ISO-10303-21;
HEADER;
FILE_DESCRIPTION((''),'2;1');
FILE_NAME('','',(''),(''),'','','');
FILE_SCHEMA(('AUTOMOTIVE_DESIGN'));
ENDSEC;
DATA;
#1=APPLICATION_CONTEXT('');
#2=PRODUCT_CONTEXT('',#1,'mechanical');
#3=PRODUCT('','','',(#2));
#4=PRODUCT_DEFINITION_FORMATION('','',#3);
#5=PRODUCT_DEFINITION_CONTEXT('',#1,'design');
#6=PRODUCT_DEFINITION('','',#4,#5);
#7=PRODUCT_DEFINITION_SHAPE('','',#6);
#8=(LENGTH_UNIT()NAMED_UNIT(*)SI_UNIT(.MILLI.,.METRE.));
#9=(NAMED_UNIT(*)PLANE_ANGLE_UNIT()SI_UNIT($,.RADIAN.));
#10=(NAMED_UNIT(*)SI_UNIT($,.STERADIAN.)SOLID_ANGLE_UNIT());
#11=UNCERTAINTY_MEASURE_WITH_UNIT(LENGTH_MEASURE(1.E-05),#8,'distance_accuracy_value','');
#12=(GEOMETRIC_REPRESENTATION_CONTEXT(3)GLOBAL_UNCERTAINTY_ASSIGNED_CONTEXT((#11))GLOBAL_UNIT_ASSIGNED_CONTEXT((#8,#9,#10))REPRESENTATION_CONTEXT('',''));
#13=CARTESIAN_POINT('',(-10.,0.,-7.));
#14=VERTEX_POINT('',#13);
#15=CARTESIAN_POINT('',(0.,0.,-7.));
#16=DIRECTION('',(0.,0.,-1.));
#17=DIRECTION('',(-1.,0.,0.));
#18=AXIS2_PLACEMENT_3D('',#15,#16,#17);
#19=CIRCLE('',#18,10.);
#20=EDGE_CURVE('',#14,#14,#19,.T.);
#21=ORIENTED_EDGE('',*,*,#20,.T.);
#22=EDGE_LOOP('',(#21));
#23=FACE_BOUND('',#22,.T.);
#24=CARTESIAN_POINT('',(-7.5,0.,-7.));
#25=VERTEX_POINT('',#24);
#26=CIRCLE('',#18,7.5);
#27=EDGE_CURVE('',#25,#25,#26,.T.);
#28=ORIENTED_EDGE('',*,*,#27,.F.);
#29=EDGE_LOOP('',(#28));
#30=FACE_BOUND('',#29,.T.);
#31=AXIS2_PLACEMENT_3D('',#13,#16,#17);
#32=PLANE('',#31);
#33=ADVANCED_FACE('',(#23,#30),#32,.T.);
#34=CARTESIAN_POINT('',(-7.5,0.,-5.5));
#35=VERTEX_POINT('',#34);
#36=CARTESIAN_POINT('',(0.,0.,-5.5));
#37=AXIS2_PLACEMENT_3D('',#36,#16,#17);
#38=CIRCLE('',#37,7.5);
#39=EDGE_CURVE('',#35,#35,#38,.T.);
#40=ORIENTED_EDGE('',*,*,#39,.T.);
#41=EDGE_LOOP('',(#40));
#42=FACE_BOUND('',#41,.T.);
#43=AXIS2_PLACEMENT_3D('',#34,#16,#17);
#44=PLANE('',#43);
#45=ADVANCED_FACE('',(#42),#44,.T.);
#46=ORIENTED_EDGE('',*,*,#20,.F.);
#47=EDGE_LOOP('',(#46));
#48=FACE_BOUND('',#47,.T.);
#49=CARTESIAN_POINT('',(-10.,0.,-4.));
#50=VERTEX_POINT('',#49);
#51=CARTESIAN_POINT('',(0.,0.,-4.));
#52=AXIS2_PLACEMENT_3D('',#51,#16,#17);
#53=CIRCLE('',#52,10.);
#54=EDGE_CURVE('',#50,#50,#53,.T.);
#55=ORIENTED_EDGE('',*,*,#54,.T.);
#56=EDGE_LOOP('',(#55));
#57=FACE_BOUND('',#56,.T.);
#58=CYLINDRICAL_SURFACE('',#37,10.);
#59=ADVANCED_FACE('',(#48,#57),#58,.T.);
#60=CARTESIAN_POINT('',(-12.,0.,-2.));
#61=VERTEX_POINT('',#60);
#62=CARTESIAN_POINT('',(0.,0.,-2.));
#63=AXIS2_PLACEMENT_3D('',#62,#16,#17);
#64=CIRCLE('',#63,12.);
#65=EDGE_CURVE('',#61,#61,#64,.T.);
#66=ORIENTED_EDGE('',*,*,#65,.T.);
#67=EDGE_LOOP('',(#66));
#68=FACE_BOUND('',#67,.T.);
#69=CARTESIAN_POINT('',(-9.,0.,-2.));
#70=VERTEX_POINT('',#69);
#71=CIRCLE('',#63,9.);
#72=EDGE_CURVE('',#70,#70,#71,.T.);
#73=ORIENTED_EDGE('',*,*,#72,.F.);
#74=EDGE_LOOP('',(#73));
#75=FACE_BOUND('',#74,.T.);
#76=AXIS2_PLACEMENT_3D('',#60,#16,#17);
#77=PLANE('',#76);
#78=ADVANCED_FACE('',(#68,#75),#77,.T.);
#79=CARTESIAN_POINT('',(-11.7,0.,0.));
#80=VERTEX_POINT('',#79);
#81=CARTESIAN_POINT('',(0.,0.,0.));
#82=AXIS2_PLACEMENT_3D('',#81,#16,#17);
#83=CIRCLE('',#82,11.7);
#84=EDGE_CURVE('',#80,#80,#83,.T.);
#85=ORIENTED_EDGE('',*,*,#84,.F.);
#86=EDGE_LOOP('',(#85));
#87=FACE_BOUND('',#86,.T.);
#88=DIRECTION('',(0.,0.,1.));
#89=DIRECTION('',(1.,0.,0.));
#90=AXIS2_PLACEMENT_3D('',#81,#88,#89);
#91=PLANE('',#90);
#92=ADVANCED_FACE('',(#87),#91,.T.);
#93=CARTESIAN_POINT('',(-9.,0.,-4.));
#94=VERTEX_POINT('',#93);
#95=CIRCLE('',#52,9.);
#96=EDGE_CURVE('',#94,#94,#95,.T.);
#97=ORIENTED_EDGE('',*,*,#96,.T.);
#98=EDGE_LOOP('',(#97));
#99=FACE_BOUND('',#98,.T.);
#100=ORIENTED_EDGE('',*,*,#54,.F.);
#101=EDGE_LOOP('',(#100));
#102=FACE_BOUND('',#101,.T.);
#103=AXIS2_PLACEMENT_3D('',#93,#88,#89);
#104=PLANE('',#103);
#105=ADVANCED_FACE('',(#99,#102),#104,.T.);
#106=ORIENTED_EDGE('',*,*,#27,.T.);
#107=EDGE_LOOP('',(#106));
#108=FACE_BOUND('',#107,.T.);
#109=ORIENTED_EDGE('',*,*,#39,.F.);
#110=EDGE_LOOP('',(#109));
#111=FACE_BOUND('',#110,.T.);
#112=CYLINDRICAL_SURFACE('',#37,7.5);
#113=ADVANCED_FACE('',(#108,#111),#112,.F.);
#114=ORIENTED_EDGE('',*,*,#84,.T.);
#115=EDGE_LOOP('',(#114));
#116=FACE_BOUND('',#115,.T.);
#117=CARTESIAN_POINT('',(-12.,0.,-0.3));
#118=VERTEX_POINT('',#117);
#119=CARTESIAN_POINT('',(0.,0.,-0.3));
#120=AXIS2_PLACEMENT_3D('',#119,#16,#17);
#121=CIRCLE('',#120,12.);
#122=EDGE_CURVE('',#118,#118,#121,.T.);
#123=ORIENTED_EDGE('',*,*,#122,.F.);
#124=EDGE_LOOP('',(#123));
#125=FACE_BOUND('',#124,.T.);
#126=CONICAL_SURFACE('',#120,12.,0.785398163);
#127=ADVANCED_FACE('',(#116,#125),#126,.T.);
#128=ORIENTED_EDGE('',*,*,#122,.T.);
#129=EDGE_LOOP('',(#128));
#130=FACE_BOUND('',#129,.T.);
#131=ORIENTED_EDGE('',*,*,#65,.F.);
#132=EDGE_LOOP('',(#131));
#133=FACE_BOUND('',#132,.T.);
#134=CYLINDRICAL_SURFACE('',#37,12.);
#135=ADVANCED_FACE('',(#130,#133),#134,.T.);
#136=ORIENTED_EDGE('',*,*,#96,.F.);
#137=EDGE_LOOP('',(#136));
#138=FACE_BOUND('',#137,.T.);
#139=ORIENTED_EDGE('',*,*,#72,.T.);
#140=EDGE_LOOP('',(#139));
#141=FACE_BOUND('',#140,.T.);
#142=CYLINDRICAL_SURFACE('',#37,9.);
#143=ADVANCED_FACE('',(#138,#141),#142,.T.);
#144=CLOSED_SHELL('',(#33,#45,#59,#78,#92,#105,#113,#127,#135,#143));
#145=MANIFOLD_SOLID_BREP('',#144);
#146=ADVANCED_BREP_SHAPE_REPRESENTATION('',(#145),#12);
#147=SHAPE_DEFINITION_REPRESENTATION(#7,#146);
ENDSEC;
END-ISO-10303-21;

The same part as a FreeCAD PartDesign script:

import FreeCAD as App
import Part
import Sketcher
Q = App.Units.Quantity


def add_polygon(sketch, points):
    """Adds a closed chain of lines whose ends are joined by coincident constraints."""
    first, n = sketch.GeometryCount, len(points)
    for a, b in zip(points, points[1:] + points[:1]):
        sketch.addGeometry(Part.LineSegment(App.Vector(*a, 0), App.Vector(*b, 0)), False)
    for i in range(n):
        sketch.addConstraint(Sketcher.Constraint("Coincident", first + i, 2, first + (i + 1) % n, 1))

doc = App.newDocument("Part")
body = doc.addObject("PartDesign::Body", "Body")

sketch1 = body.newObject("Sketcher::SketchObject", "Sketch")
sketch1.AttachmentSupport = (doc.getObject("XZ_Plane"), [""])
sketch1.MapMode = "FlatFace"
add_polygon(sketch1, [(-11.7, 0), (0, 0), (0, -5.5), (-7.5, -5.5), (-7.5, -7), (-10, -7), (-10, -4), (-9, -4), (-9, -2), (-12, -2), (-12, -0.3)])
sketch1.addConstraint([
    Sketcher.Constraint("Horizontal", 0),
    Sketcher.Constraint("Vertical", 1),
    Sketcher.Constraint("Horizontal", 2),
    Sketcher.Constraint("Vertical", 3),
    Sketcher.Constraint("Horizontal", 4),
    Sketcher.Constraint("Vertical", 5),
    Sketcher.Constraint("Horizontal", 6),
    Sketcher.Constraint("Vertical", 7),
    Sketcher.Constraint("Horizontal", 8),
    Sketcher.Constraint("Vertical", 9),
    Sketcher.Constraint("Coincident", 0, 2, -1, 1),
    Sketcher.Constraint("Equal", 8, 5),
    Sketcher.Constraint("DistanceX", 6, 1, 6, 2, Q("1 mm")),
    Sketcher.Constraint("DistanceX", 8, 2, 8, 1, Q("3 mm")),
    Sketcher.Constraint("DistanceY", 7, 1, 7, 2, Q("2 mm")),
    Sketcher.Constraint("Angle", 10, Q("45 deg")),
    Sketcher.Constraint("DistanceX", 0, 1, 0, 2, Q("11.7 mm")),
    Sketcher.Constraint("DistanceX", 2, 2, 2, 1, Q("7.5 mm")),
    Sketcher.Constraint("DistanceX", 4, 2, 4, 1, Q("2.5 mm")),
    Sketcher.Constraint("DistanceY", 1, 2, 1, 1, Q("5.5 mm")),
    Sketcher.Constraint("DistanceY", 3, 2, 3, 1, Q("1.5 mm")),
])
revolution = body.newObject("PartDesign::Revolution", "Revolution")
revolution.Profile = sketch1
revolution.ReferenceAxis = (sketch1, ["V_Axis"])
revolution.Angle = 360

doc.recompute()
